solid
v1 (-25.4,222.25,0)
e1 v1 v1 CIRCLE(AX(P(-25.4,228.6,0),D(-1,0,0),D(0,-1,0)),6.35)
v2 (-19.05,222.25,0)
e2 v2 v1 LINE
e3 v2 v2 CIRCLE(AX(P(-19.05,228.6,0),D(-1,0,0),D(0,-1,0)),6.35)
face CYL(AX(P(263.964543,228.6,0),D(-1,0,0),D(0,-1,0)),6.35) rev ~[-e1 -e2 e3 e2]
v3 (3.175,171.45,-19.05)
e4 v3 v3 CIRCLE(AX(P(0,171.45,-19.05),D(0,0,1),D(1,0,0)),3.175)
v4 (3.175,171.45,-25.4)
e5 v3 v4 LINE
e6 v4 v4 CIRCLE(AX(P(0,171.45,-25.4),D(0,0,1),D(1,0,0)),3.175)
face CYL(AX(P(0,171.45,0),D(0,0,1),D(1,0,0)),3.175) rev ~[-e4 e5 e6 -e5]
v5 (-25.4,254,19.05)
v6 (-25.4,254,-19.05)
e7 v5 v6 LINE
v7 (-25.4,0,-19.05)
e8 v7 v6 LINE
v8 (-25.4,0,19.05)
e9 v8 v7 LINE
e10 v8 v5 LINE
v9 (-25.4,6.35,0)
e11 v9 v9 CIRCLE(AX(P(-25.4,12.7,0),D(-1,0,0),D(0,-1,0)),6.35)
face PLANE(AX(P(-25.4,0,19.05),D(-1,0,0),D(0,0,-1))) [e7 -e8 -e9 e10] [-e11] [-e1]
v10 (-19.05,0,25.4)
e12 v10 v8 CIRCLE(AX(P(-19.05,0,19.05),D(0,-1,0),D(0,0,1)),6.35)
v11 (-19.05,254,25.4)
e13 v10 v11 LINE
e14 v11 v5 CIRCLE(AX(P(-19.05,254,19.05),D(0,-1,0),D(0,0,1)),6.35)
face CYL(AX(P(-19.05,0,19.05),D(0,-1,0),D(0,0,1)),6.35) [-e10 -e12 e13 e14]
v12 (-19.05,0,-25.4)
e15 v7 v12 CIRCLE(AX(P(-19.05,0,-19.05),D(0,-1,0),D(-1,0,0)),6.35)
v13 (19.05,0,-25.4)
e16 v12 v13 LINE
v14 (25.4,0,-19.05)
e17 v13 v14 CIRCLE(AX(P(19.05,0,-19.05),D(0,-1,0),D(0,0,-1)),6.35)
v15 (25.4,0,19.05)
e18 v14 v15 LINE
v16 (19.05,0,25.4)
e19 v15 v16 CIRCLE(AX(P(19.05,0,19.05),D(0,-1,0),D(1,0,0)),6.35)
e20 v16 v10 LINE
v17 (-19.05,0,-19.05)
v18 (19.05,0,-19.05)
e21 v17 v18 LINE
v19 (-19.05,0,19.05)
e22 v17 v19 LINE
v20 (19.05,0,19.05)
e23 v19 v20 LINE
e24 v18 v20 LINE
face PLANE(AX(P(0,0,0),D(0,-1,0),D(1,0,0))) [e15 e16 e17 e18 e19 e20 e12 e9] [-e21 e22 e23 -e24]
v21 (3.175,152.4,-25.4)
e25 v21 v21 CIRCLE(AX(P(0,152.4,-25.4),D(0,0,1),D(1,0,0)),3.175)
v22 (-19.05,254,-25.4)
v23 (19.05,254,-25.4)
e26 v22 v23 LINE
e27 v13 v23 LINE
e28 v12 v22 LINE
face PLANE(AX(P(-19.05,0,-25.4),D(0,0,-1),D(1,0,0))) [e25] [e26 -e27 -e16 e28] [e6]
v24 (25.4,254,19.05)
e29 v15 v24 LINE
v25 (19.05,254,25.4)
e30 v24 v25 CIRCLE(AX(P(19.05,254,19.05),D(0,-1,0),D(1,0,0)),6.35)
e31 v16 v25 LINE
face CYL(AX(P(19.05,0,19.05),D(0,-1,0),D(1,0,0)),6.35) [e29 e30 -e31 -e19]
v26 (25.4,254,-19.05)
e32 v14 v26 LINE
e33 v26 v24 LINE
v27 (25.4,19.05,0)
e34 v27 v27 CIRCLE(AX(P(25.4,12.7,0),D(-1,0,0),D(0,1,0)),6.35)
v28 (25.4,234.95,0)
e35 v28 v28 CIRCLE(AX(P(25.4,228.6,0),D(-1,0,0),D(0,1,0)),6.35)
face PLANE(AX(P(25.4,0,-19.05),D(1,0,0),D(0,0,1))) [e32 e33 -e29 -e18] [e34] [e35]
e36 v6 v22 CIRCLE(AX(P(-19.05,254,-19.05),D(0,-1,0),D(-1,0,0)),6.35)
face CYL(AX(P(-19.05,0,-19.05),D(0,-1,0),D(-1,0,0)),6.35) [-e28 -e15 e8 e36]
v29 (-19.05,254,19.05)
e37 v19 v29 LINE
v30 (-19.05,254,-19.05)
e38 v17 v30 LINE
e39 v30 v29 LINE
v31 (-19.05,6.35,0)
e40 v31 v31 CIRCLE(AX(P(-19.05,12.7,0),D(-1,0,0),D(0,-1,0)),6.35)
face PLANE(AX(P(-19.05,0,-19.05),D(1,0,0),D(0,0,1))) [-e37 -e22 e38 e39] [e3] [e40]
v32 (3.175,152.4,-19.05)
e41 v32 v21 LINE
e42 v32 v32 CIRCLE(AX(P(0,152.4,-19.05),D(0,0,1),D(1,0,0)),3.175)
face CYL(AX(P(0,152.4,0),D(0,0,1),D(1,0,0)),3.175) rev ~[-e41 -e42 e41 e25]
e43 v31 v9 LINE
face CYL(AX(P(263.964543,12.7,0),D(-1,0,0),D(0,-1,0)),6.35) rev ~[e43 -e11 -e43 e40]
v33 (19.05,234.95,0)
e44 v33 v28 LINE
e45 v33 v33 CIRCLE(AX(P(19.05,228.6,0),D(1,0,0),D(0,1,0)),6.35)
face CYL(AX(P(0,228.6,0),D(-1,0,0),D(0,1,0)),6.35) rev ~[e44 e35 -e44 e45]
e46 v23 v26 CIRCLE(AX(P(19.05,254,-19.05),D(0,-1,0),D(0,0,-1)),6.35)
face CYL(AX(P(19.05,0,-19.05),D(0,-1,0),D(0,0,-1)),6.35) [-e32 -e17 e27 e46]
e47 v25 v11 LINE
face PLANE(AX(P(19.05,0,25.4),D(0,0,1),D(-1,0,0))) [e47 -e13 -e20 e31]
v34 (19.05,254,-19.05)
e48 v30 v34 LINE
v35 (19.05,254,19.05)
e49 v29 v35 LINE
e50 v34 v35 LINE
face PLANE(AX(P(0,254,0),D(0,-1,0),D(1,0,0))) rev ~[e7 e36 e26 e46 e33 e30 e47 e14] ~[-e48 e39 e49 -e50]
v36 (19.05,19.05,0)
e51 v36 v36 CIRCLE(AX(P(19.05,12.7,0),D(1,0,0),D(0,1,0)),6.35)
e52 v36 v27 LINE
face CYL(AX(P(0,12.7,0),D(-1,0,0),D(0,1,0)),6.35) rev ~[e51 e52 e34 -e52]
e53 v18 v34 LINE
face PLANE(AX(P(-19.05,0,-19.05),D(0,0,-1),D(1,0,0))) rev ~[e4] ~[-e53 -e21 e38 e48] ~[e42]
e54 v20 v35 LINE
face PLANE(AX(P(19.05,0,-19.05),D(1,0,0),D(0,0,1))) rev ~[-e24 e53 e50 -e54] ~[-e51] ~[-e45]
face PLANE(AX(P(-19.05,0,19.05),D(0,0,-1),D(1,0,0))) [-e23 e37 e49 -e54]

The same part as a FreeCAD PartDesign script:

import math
import FreeCAD as App
import Part
import Sketcher
Q = App.Units.Quantity

doc = App.newDocument("Part")
body = doc.addObject("PartDesign::Body", "Body")

# Sketch on XZ plane
sketch1 = body.newObject("Sketcher::SketchObject", "Sketch")
sketch1.AttachmentSupport = (doc.getObject("XZ_Plane"), [""])
sketch1.MapMode = "FlatFace"
sketch1.addGeometry(Part.LineSegment(App.Vector(-19.05, -25.4, 0), App.Vector(19.05, -25.4, 0)), False)
sketch1.addGeometry(Part.ArcOfCircle(Part.Circle(App.Vector(19.05, -19.05, 0), App.Vector(0, 0, 1), 6.35), math.radians(-90), math.radians(0)), False)
sketch1.addGeometry(Part.LineSegment(App.Vector(25.4, -19.05, 0), App.Vector(25.4, 19.05, 0)), False)
sketch1.addGeometry(Part.ArcOfCircle(Part.Circle(App.Vector(19.05, 19.05, 0), App.Vector(0, 0, 1), 6.35), math.radians(0), math.radians(90)), False)
sketch1.addGeometry(Part.LineSegment(App.Vector(19.05, 25.4, 0), App.Vector(-19.05, 25.4, 0)), False)
sketch1.addGeometry(Part.ArcOfCircle(Part.Circle(App.Vector(-19.05, 19.05, 0), App.Vector(0, 0, 1), 6.35), math.radians(90), math.radians(180)), False)
sketch1.addGeometry(Part.LineSegment(App.Vector(-25.4, 19.05, 0), App.Vector(-25.4, -19.05, 0)), False)
sketch1.addGeometry(Part.ArcOfCircle(Part.Circle(App.Vector(-19.05, -19.05, 0), App.Vector(0, 0, 1), 6.35), math.radians(180), math.radians(270)), False)
sketch1.addGeometry(Part.LineSegment(App.Vector(19.05, -19.05, 0), App.Vector(-19.05, -19.05, 0)), False)
sketch1.addGeometry(Part.LineSegment(App.Vector(-19.05, -19.05, 0), App.Vector(-19.05, 19.05, 0)), False)
sketch1.addGeometry(Part.LineSegment(App.Vector(-19.05, 19.05, 0), App.Vector(19.05, 19.05, 0)), False)
sketch1.addGeometry(Part.LineSegment(App.Vector(19.05, 19.05, 0), App.Vector(19.05, -19.05, 0)), False)
sketch1.addConstraint(Sketcher.Constraint("Tangent", 0, 2, 1, 1))
sketch1.addConstraint(Sketcher.Constraint("Tangent", 1, 2, 2, 1))
sketch1.addConstraint(Sketcher.Constraint("Tangent", 2, 2, 3, 1))
sketch1.addConstraint(Sketcher.Constraint("Tangent", 3, 2, 4, 1))
sketch1.addConstraint(Sketcher.Constraint("Tangent", 4, 2, 5, 1))
sketch1.addConstraint(Sketcher.Constraint("Tangent", 5, 2, 6, 1))
sketch1.addConstraint(Sketcher.Constraint("Tangent", 6, 2, 7, 1))
sketch1.addConstraint(Sketcher.Constraint("Tangent", 7, 2, 0, 1))
sketch1.addConstraint(Sketcher.Constraint("Coincident", 8, 2, 9, 1))
sketch1.addConstraint(Sketcher.Constraint("Coincident", 9, 2, 10, 1))
sketch1.addConstraint(Sketcher.Constraint("Coincident", 10, 2, 11, 1))
sketch1.addConstraint(Sketcher.Constraint("Coincident", 11, 2, 8, 1))
sketch1.addConstraint(Sketcher.Constraint("Horizontal", 0))
sketch1.addConstraint(Sketcher.Constraint("Vertical", 2))
sketch1.addConstraint(Sketcher.Constraint("Horizontal", 4))
sketch1.addConstraint(Sketcher.Constraint("Vertical", 6))
sketch1.addConstraint(Sketcher.Constraint("Horizontal", 8))
sketch1.addConstraint(Sketcher.Constraint("Vertical", 9))
sketch1.addConstraint(Sketcher.Constraint("Horizontal", 10))
sketch1.addConstraint(Sketcher.Constraint("Vertical", 11))
sketch1.addConstraint(Sketcher.Constraint("Coincident", 8, 2, 7, 3))
sketch1.addConstraint(Sketcher.Constraint("Coincident", 9, 2, 5, 3))
sketch1.addConstraint(Sketcher.Constraint("Coincident", 10, 2, 3, 3))
sketch1.addConstraint(Sketcher.Constraint("Equal", 1, 3))
sketch1.addConstraint(Sketcher.Constraint("Symmetric", 1, 3, 5, 3, -1, 1))
sketch1.addConstraint(Sketcher.Constraint("Equal", 10, 2))
sketch1.addConstraint(Sketcher.Constraint("Radius", 1, Q("0.25 in")))
sketch1.addConstraint(Sketcher.Constraint("DistanceX", 0, 1, 0, 2, Q("1.5 in")))
pad1 = body.newObject("PartDesign::Pad", "Pad")
pad1.Profile = sketch1
pad1.Length = Q("10 in")
pad1.Reversed = True

# Sketch on YZ plane
sketch2 = body.newObject("Sketcher::SketchObject", "Sketch001")
sketch2.AttachmentSupport = (doc.getObject("YZ_Plane"), [""])
sketch2.MapMode = "FlatFace"
sketch2.addGeometry(Part.Circle(App.Vector(228.6, 0, 0), App.Vector(0, 0, 1), 6.35), False)
sketch2.addGeometry(Part.Circle(App.Vector(12.7, 0, 0), App.Vector(0, 0, 1), 6.35), False)
sketch2.addConstraint(Sketcher.Constraint("Equal", 0, 1))
sketch2.addConstraint(Sketcher.Constraint("PointOnObject", 0, 3, -1))
sketch2.addConstraint(Sketcher.Constraint("PointOnObject", 1, 3, -1))
sketch2.addConstraint(Sketcher.Constraint("Diameter", 0, Q("0.5 in")))
sketch2.addConstraint(Sketcher.Constraint("DistanceX", -1, 1, 0, 3, Q("9 in")))
sketch2.addConstraint(Sketcher.Constraint("DistanceX", -1, 1, 1, 3, Q("0.5 in")))
pocket1 = body.newObject("PartDesign::Pocket", "Pocket")
pocket1.Profile = sketch2
pocket1.Type = "ThroughAll"
pocket1.Reversed = True

# Sketch on YZ plane
sketch3 = body.newObject("Sketcher::SketchObject", "Sketch002")
sketch3.AttachmentSupport = (doc.getObject("YZ_Plane"), [""])
sketch3.MapMode = "FlatFace"
sketch3.addGeometry(Part.Circle(App.Vector(12.7, 0, 0), App.Vector(0, 0, 1), 6.35), False)
sketch3.addGeometry(Part.Circle(App.Vector(228.6, 0, 0), App.Vector(0, 0, 1), 6.35), False)
sketch3.addConstraint(Sketcher.Constraint("Equal", 0, 1))
sketch3.addConstraint(Sketcher.Constraint("PointOnObject", 0, 3, -1))
sketch3.addConstraint(Sketcher.Constraint("PointOnObject", 1, 3, -1))
sketch3.addConstraint(Sketcher.Constraint("Diameter", 0, Q("0.5 in")))
sketch3.addConstraint(Sketcher.Constraint("DistanceX", -1, 1, 1, 3, Q("9 in")))
sketch3.addConstraint(Sketcher.Constraint("DistanceX", -1, 1, 0, 3, Q("0.5 in")))
doc.recompute()
hole = body.newObject("PartDesign::Hole", "Hole")
hole.Profile = sketch3
hole.ThreadType = "None"
hole.Diameter = Q("0.5 in")
hole.DepthType = "ThroughAll"

# Sketch on XY plane
sketch4 = body.newObject("Sketcher::SketchObject", "Sketch003")
sketch4.AttachmentSupport = (doc.getObject("XY_Plane"), [""])
sketch4.MapMode = "FlatFace"
sketch4.addGeometry(Part.Circle(App.Vector(0, 152.4, 0), App.Vector(0, 0, 1), 3.175), False)
sketch4.addGeometry(Part.Circle(App.Vector(0, 171.45, 0), App.Vector(0, 0, 1), 3.175), False)
sketch4.addConstraint(Sketcher.Constraint("Equal", 0, 1))
sketch4.addConstraint(Sketcher.Constraint("PointOnObject", 0, 3, -2))
sketch4.addConstraint(Sketcher.Constraint("PointOnObject", 1, 3, -2))
sketch4.addConstraint(Sketcher.Constraint("Diameter", 0, Q("0.25 in")))
sketch4.addConstraint(Sketcher.Constraint("DistanceY", -1, 1, 0, 3, Q("6 in")))
sketch4.addConstraint(Sketcher.Constraint("DistanceY", -1, 1, 1, 3, Q("6.75 in")))
pocket2 = body.newObject("PartDesign::Pocket", "Pocket001")
pocket2.Profile = sketch4
pocket2.Type = "ThroughAll"

doc.recompute()
